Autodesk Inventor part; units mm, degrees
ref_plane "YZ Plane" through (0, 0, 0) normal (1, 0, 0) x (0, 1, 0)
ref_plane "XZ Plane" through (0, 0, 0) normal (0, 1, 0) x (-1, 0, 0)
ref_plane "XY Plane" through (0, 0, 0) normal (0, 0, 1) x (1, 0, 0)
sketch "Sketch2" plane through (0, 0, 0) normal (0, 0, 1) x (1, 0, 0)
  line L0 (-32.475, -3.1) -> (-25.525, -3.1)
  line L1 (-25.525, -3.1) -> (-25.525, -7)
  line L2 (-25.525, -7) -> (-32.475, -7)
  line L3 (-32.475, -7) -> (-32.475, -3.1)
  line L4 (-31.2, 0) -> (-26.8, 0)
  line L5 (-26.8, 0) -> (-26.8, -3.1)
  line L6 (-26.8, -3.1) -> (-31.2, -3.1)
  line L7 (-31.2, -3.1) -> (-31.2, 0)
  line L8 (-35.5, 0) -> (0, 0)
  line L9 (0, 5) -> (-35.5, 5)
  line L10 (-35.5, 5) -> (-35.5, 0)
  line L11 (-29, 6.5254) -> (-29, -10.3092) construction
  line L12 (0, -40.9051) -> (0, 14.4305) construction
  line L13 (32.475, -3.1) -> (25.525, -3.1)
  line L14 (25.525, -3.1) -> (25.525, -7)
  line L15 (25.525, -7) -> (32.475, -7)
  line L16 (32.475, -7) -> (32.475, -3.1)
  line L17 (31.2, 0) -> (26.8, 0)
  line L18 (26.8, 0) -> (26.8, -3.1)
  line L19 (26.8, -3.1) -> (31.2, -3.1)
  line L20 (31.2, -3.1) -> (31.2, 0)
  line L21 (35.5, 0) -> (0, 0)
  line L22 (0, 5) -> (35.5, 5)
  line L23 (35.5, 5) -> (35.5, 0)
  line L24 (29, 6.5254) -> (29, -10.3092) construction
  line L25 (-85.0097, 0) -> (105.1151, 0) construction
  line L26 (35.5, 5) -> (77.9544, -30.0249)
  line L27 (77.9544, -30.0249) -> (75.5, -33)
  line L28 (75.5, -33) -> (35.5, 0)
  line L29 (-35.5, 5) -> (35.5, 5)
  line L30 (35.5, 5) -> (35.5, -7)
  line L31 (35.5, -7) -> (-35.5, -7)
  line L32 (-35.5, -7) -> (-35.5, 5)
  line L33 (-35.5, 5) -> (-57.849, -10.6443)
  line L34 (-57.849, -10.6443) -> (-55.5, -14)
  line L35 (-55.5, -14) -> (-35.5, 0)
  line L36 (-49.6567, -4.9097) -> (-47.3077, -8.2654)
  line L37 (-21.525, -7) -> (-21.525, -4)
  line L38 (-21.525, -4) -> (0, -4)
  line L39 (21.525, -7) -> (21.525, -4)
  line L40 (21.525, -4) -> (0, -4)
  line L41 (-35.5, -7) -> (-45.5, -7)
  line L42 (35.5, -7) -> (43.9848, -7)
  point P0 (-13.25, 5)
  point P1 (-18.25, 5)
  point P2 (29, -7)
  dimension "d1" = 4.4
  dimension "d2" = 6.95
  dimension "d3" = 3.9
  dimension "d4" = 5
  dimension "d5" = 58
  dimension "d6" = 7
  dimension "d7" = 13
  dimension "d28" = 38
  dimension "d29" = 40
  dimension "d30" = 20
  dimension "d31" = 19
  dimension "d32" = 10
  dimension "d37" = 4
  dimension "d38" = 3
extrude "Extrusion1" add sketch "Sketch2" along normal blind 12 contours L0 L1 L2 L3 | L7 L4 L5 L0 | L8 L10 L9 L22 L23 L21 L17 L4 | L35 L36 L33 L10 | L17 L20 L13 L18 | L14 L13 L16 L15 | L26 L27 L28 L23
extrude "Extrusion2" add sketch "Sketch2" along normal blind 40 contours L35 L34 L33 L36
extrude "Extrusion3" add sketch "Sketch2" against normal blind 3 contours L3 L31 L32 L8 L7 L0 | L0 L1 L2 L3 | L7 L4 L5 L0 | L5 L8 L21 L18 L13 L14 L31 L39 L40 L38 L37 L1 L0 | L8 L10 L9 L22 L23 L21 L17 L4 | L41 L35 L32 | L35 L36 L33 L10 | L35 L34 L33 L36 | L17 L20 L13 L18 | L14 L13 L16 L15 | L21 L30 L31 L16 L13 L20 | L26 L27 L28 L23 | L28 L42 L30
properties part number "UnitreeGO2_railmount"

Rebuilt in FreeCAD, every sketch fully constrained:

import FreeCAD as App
import Part
import Sketcher
from FreeCAD import Vector

doc = App.newDocument("Part")
params = doc.addObject("Spreadsheet::Sheet", "Params")
for row, (alias, value) in enumerate([
    ("sketch1_height", "3.9 mm"),
    ("sketch1_width", "6.95 mm"),
    ("sketch1_width2", "71 mm"),
    ("pad1_length", "12 mm"),
    ("sketch2_length", "10 mm"),
    ("pad2_length", "40 mm"),
    ("sketch3_height", "3 mm"),
    ("sketch3_width", "71 mm"),
    ("sketch3_width2", "43.05 mm"),
    ("pad3_length", "3 mm"),
], start=1):
    params.set(f"A{row}", alias)
    params.set(f"B{row}", "=" + value)
    params.setAlias(f"B{row}", alias)

body = doc.addObject("PartDesign::Body", "Body")

sketch1 = body.newObject("Sketcher::SketchObject", "Sketch")
sketch1.AttachmentSupport = (doc.getObject("XY_Plane"), [""])
sketch1.MapMode = "FlatFace"
sketch1.addGeometry([
    Part.LineSegment(Vector(-31.2, -3.1, 0), Vector(-32.5, -3.1, 0)),
    Part.LineSegment(Vector(-32.5, -3.1, 0), Vector(-32.5, -7, 0)),
    Part.LineSegment(Vector(-32.5, -7, 0), Vector(-25.5, -7, 0)),
    Part.LineSegment(Vector(-25.5, -7, 0), Vector(-25.5, -3.1, 0)),
    Part.LineSegment(Vector(-25.5, -3.1, 0), Vector(-26.8, -3.1, 0)),
    Part.LineSegment(Vector(-26.8, -3.1, 0), Vector(-26.8, 0, 0)),
    Part.LineSegment(Vector(-26.8, 0, 0), Vector(26.8, 0, 0)),
    Part.LineSegment(Vector(26.8, 0, 0), Vector(26.8, -3.1, 0)),
    Part.LineSegment(Vector(26.8, -3.1, 0), Vector(25.5, -3.1, 0)),
    Part.LineSegment(Vector(25.5, -3.1, 0), Vector(25.5, -7, 0)),
    Part.LineSegment(Vector(25.5, -7, 0), Vector(32.5, -7, 0)),
    Part.LineSegment(Vector(32.5, -7, 0), Vector(32.5, -3.1, 0)),
    Part.LineSegment(Vector(32.5, -3.1, 0), Vector(31.2, -3.1, 0)),
    Part.LineSegment(Vector(31.2, -3.1, 0), Vector(31.2, 0, 0)),
    Part.LineSegment(Vector(31.2, 0, 0), Vector(35.5, 0, 0)),
    Part.LineSegment(Vector(35.5, 0, 0), Vector(75.5, -33, 0)),
    Part.LineSegment(Vector(75.5, -33, 0), Vector(78, -30, 0)),
    Part.LineSegment(Vector(78, -30, 0), Vector(35.5, 5, 0)),
    Part.LineSegment(Vector(35.5, 5, 0), Vector(-35.5, 5, 0)),
    Part.LineSegment(Vector(-35.5, 5, 0), Vector(-49.7, -4.9, 0)),
    Part.LineSegment(Vector(-49.7, -4.9, 0), Vector(-47.3, -8.3, 0)),
    Part.LineSegment(Vector(-47.3, -8.3, 0), Vector(-35.5, 0, 0)),
    Part.LineSegment(Vector(-35.5, 0, 0), Vector(-31.2, 0, 0)),
    Part.LineSegment(Vector(-31.2, 0, 0), Vector(-31.2, -3.1, 0)),
], False)
sketch1.addConstraint([
    Sketcher.Constraint("Coincident", 0, 2, 1, 1),
    Sketcher.Constraint("Coincident", 1, 2, 2, 1),
    Sketcher.Constraint("Coincident", 2, 2, 3, 1),
    Sketcher.Constraint("Coincident", 3, 2, 4, 1),
    Sketcher.Constraint("Coincident", 4, 2, 5, 1),
    Sketcher.Constraint("Coincident", 5, 2, 6, 1),
    Sketcher.Constraint("Coincident", 6, 2, 7, 1),
    Sketcher.Constraint("Coincident", 7, 2, 8, 1),
    Sketcher.Constraint("Coincident", 8, 2, 9, 1),
    Sketcher.Constraint("Coincident", 9, 2, 10, 1),
    Sketcher.Constraint("Coincident", 10, 2, 11, 1),
    Sketcher.Constraint("Coincident", 11, 2, 12, 1),
    Sketcher.Constraint("Coincident", 12, 2, 13, 1),
    Sketcher.Constraint("Coincident", 13, 2, 14, 1),
    Sketcher.Constraint("Coincident", 14, 2, 15, 1),
    Sketcher.Constraint("Coincident", 15, 2, 16, 1),
    Sketcher.Constraint("Coincident", 16, 2, 17, 1),
    Sketcher.Constraint("Coincident", 17, 2, 18, 1),
    Sketcher.Constraint("Coincident", 18, 2, 19, 1),
    Sketcher.Constraint("Coincident", 19, 2, 20, 1),
    Sketcher.Constraint("Coincident", 20, 2, 21, 1),
    Sketcher.Constraint("Coincident", 21, 2, 22, 1),
    Sketcher.Constraint("Coincident", 22, 2, 23, 1),
    Sketcher.Constraint("Coincident", 23, 2, 0, 1),
    Sketcher.Constraint("Horizontal", 0),
    Sketcher.Constraint("Vertical", 1),
    Sketcher.Constraint("Horizontal", 2),
    Sketcher.Constraint("Vertical", 3),
    Sketcher.Constraint("Horizontal", 4),
    Sketcher.Constraint("Vertical", 5),
    Sketcher.Constraint("Horizontal", 6),
    Sketcher.Constraint("Vertical", 7),
    Sketcher.Constraint("Horizontal", 8),
    Sketcher.Constraint("Vertical", 9),
    Sketcher.Constraint("Horizontal", 10),
    Sketcher.Constraint("Vertical", 11),
    Sketcher.Constraint("Horizontal", 12),
    Sketcher.Constraint("Vertical", 13),
    Sketcher.Constraint("Horizontal", 14),
    Sketcher.Constraint("Horizontal", 18),
    Sketcher.Constraint("Horizontal", 22),
    Sketcher.Constraint("Vertical", 23),
    Sketcher.Constraint("Symmetric", 5, 2, 6, 2, -1, 1),
    Sketcher.Constraint("Symmetric", 14, 2, 21, 2, -1, 1),
    Sketcher.Constraint("Symmetric", 3, 2, 8, 2, -2),
    Sketcher.Constraint("Symmetric", 1, 2, 10, 2, -2),
    Sketcher.Constraint("Symmetric", 13, 2, 22, 2, -2),
    Sketcher.Constraint("Perpendicular", 15, 16),
    Sketcher.Constraint("Perpendicular", 16, 17),
    Sketcher.Constraint("Perpendicular", 19, 20),
    Sketcher.Constraint("Perpendicular", 20, 21),
    Sketcher.Constraint("Horizontal", 0, 2, 3, 2),
    Sketcher.Constraint("Horizontal", 8, 2, 11, 2),
    Sketcher.Constraint("Vertical", 14, 2, 17, 2),
    Sketcher.Constraint("Vertical", 18, 2, 21, 2),
    Sketcher.Constraint("Equal", 0, 4),
    Sketcher.Constraint("DistanceY", 1, 2, 1, 1, 3.9),
    Sketcher.Constraint("DistanceY", 1, 2, -1, 1, 7.0),
    Sketcher.Constraint("DistanceY", -1, 1, 17, 2, 5.0),
    Sketcher.Constraint("DistanceX", 2, 2, 10, 2, 58.0),
    Sketcher.Constraint("DistanceX", 14, 2, 15, 2, 40.0),
    Sketcher.Constraint("DistanceX", 2, 1, 2, 2, 6.95),
    Sketcher.Constraint("DistanceX", 7, 2, 12, 2, 4.4),
    Sketcher.Constraint("DistanceX", 18, 2, 18, 1, 71.0),
    Sketcher.Constraint("DistanceY", 15, 2, -1, 1, 33.0),
    Sketcher.Constraint("DistanceX", 19, 2, 20, 2, 2.349),
    Sketcher.Constraint("Distance", 19, 17.2805),
])
sketch1.setExpression("Constraints[56]", "Params.sketch1_height")
sketch1.setExpression("Constraints[61]", "Params.sketch1_width")
sketch1.setExpression("Constraints[63]", "Params.sketch1_width2")
pad1 = body.newObject("PartDesign::Pad", "Pad")
pad1.Profile = sketch1
pad1.setExpression("Length", "Params.pad1_length")

sketch2 = body.newObject("Sketcher::SketchObject", "Sketch001")
sketch2.AttachmentSupport = (doc.getObject("XY_Plane"), [""])
sketch2.MapMode = "FlatFace"
sketch2.addGeometry([
    Part.LineSegment(Vector(-55.5, -14, 0), Vector(-47.3, -8.3, 0)),
    Part.LineSegment(Vector(-47.3, -8.3, 0), Vector(-49.7, -4.9, 0)),
    Part.LineSegment(Vector(-49.7, -4.9, 0), Vector(-57.8, -10.6, 0)),
    Part.LineSegment(Vector(-57.8, -10.6, 0), Vector(-55.5, -14, 0)),
], False)
sketch2.addConstraint([
    Sketcher.Constraint("Coincident", 0, 2, 1, 1),
    Sketcher.Constraint("Coincident", 1, 2, 2, 1),
    Sketcher.Constraint("Coincident", 2, 2, 3, 1),
    Sketcher.Constraint("Coincident", 3, 2, 0, 1),
    Sketcher.Constraint("Perpendicular", 0, 1),
    Sketcher.Constraint("Perpendicular", 1, 2),
    Sketcher.Constraint("Perpendicular", 2, 3),
    Sketcher.Constraint("Distance", 0, 10.0),
    Sketcher.Constraint("DistanceY", 3, 2, -1, 1, 14.0),
    Sketcher.Constraint("DistanceX", 3, 2, -1, 1, 55.5),
    Sketcher.Constraint("DistanceX", 2, 2, -1, 1, 57.849),
    Sketcher.Constraint("DistanceY", 2, 2, 0, 2, 2.379),
])
sketch2.setExpression("Constraints[7]", "Params.sketch2_length")
pad2 = body.newObject("PartDesign::Pad", "Pad001")
pad2.Profile = sketch2
pad2.setExpression("Length", "Params.pad2_length")

sketch3 = body.newObject("Sketcher::SketchObject", "Sketch002")
sketch3.AttachmentSupport = (doc.getObject("XY_Plane"), [""])
sketch3.MapMode = "FlatFace"
sketch3.addGeometry([
    Part.LineSegment(Vector(-21.5, -7, 0), Vector(-21.5, -4, 0)),
    Part.LineSegment(Vector(-21.5, -4, 0), Vector(21.5, -4, 0)),
    Part.LineSegment(Vector(21.5, -4, 0), Vector(21.5, -7, 0)),
    Part.LineSegment(Vector(21.5, -7, 0), Vector(44, -7, 0)),
    Part.LineSegment(Vector(44, -7, 0), Vector(75.5, -33, 0)),
    Part.LineSegment(Vector(75.5, -33, 0), Vector(78, -30, 0)),
    Part.LineSegment(Vector(78, -30, 0), Vector(35.5, 5, 0)),
    Part.LineSegment(Vector(35.5, 5, 0), Vector(-35.5, 5, 0)),
    Part.LineSegment(Vector(-35.5, 5, 0), Vector(-57.8, -10.6, 0)),
    Part.LineSegment(Vector(-57.8, -10.6, 0), Vector(-55.5, -14, 0)),
    Part.LineSegment(Vector(-55.5, -14, 0), Vector(-45.5, -7, 0)),
    Part.LineSegment(Vector(-45.5, -7, 0), Vector(-21.5, -7, 0)),
], False)
sketch3.addConstraint([
    Sketcher.Constraint("Coincident", 0, 2, 1, 1),
    Sketcher.Constraint("Coincident", 1, 2, 2, 1),
    Sketcher.Constraint("Coincident", 2, 2, 3, 1),
    Sketcher.Constraint("Coincident", 3, 2, 4, 1),
    Sketcher.Constraint("Coincident", 4, 2, 5, 1),
    Sketcher.Constraint("Coincident", 5, 2, 6, 1),
    Sketcher.Constraint("Coincident", 6, 2, 7, 1),
    Sketcher.Constraint("Coincident", 7, 2, 8, 1),
    Sketcher.Constraint("Coincident", 8, 2, 9, 1),
    Sketcher.Constraint("Coincident", 9, 2, 10, 1),
    Sketcher.Constraint("Coincident", 10, 2, 11, 1),
    Sketcher.Constraint("Coincident", 11, 2, 0, 1),
    Sketcher.Constraint("Vertical", 0),
    Sketcher.Constraint("Horizontal", 1),
    Sketcher.Constraint("Vertical", 2),
    Sketcher.Constraint("Horizontal", 3),
    Sketcher.Constraint("Horizontal", 7),
    Sketcher.Constraint("Horizontal", 11),
    Sketcher.Constraint("Symmetric", 2, 2, 11, 2, -2),
    Sketcher.Constraint("Perpendicular", 4, 5),
    Sketcher.Constraint("Perpendicular", 5, 6),
    Sketcher.Constraint("Perpendicular", 8, 9),
    Sketcher.Constraint("Perpendicular", 9, 10),
    Sketcher.Constraint("DistanceY", 0, 1, 0, 2, 3.0),
    Sketcher.Constraint("DistanceY", 0, 2, -1, 1, 4.0),
    Sketcher.Constraint("DistanceY", -1, 1, 6, 2, 5.0),
    Sketcher.Constraint("DistanceX", 6, 2, 4, 2, 40.0),
    Sketcher.Constraint("DistanceY", 4, 2, 6, 2, 38.0),
    Sketcher.Constraint("DistanceX", 9, 2, 7, 2, 20.0),
    Sketcher.Constraint("DistanceY", 9, 2, 7, 2, 19.0),
    Sketcher.Constraint("DistanceX", 9, 2, 10, 2, 10.0),
    Sketcher.Constraint("DistanceX", 7, 2, 7, 1, 71.0),
    Sketcher.Constraint("DistanceX", 1, 1, 1, 2, 43.05),
    Sketcher.Constraint("DistanceX", -1, 1, 4, 2, 75.5),
    Sketcher.Constraint("Distance", 4, 40.856),
])
sketch3.setExpression("Constraints[23]", "Params.sketch3_height")
sketch3.setExpression("Constraints[31]", "Params.sketch3_width")
sketch3.setExpression("Constraints[32]", "Params.sketch3_width2")
pad3 = body.newObject("PartDesign::Pad", "Pad002")
pad3.Profile = sketch3
pad3.setExpression("Length", "Params.pad3_length")
pad3.Reversed = True

doc.recompute()
